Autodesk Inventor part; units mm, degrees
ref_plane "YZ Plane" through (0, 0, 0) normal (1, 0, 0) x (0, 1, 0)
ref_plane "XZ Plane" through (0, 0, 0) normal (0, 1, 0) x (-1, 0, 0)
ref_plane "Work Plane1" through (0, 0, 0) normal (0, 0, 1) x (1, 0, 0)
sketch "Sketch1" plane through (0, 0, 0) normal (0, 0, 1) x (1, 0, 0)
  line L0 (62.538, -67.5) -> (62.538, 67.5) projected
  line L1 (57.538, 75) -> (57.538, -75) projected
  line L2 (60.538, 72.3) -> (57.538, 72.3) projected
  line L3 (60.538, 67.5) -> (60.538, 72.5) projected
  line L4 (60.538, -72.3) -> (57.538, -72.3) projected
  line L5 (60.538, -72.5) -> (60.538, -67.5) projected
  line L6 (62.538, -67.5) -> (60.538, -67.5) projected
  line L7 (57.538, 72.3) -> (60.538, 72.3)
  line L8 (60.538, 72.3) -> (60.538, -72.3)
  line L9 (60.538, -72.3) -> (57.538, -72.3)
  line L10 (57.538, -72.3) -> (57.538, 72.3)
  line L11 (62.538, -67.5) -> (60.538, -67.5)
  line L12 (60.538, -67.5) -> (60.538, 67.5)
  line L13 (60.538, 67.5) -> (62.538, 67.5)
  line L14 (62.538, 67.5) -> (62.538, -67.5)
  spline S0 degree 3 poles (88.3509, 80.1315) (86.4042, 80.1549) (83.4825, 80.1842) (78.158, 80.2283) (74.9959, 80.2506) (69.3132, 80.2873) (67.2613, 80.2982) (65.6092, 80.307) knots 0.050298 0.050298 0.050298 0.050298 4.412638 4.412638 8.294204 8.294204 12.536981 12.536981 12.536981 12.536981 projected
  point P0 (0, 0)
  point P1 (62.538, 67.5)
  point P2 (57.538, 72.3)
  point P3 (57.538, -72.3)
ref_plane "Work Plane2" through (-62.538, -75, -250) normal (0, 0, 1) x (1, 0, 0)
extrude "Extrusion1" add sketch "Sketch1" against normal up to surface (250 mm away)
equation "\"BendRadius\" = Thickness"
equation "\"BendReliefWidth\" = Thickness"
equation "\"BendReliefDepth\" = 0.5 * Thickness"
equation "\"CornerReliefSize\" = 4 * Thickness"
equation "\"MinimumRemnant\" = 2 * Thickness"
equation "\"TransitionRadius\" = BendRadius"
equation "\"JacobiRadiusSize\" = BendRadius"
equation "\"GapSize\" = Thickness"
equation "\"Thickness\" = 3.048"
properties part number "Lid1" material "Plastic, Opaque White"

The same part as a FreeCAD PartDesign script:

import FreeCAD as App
import Part
import Sketcher

V = App.Vector


def add_polygon(sketch, points):
    """Adds a closed chain of lines whose ends are joined by coincident constraints."""
    first, n = sketch.GeometryCount, len(points)
    for a, b in zip(points, points[1:] + points[:1]):
        sketch.addGeometry(Part.LineSegment(App.Vector(*a, 0), App.Vector(*b, 0)), False)
    for i in range(n):
        sketch.addConstraint(Sketcher.Constraint("Coincident", first + i, 2, first + (i + 1) % n, 1))

doc = App.newDocument("Part")
body = doc.addObject("PartDesign::Body", "Body")

# Sketch on XY plane
sketch1 = doc.addObject("Sketcher::SketchObject", "Sketch")
body.addObject(sketch1)
sketch1.AttachmentSupport = (doc.XY_Plane, [""])
sketch1.MapMode = "FlatFace"
add_polygon(sketch1, [(60.538, -67.5), (62.538, -67.5), (62.538, 67.5), (60.538, 67.5), (60.538, 72.3), (57.538, 72.3), (57.538, -72.3), (60.538, -72.3)])  # lines 0-7
sketch1.addConstraint(Sketcher.Constraint("Horizontal", 0))
sketch1.addConstraint(Sketcher.Constraint("Vertical", 1))
sketch1.addConstraint(Sketcher.Constraint("Horizontal", 2))
sketch1.addConstraint(Sketcher.Constraint("Vertical", 3))
sketch1.addConstraint(Sketcher.Constraint("Horizontal", 4))
sketch1.addConstraint(Sketcher.Constraint("Vertical", 5))
sketch1.addConstraint(Sketcher.Constraint("Horizontal", 6))
sketch1.addConstraint(Sketcher.Constraint("Vertical", 7))
sketch1.addConstraint(Sketcher.Constraint("Symmetric", 3, 2, 6, 2, -1))
sketch1.addConstraint(Sketcher.Constraint("Equal", 3, 7))
sketch1.addConstraint(Sketcher.Constraint("DistanceX", 0, 1, 0, 2, 2.0))
sketch1.addConstraint(Sketcher.Constraint("DistanceX", 4, 2, 4, 1, 3.0))
sketch1.addConstraint(Sketcher.Constraint("DistanceY", 1, 1, 1, 2, 135.0))
sketch1.addConstraint(Sketcher.Constraint("DistanceY", 3, 1, 3, 2, 4.8))
sketch1.addConstraint(Sketcher.Constraint("DistanceX", -1, 1, 0, 2, 62.538))
pad1 = doc.addObject("PartDesign::Pad", "Pad")
body.addObject(pad1)
pad1.Profile = sketch1
pad1.Length = 250
pad1.Reversed = True

doc.recompute()
